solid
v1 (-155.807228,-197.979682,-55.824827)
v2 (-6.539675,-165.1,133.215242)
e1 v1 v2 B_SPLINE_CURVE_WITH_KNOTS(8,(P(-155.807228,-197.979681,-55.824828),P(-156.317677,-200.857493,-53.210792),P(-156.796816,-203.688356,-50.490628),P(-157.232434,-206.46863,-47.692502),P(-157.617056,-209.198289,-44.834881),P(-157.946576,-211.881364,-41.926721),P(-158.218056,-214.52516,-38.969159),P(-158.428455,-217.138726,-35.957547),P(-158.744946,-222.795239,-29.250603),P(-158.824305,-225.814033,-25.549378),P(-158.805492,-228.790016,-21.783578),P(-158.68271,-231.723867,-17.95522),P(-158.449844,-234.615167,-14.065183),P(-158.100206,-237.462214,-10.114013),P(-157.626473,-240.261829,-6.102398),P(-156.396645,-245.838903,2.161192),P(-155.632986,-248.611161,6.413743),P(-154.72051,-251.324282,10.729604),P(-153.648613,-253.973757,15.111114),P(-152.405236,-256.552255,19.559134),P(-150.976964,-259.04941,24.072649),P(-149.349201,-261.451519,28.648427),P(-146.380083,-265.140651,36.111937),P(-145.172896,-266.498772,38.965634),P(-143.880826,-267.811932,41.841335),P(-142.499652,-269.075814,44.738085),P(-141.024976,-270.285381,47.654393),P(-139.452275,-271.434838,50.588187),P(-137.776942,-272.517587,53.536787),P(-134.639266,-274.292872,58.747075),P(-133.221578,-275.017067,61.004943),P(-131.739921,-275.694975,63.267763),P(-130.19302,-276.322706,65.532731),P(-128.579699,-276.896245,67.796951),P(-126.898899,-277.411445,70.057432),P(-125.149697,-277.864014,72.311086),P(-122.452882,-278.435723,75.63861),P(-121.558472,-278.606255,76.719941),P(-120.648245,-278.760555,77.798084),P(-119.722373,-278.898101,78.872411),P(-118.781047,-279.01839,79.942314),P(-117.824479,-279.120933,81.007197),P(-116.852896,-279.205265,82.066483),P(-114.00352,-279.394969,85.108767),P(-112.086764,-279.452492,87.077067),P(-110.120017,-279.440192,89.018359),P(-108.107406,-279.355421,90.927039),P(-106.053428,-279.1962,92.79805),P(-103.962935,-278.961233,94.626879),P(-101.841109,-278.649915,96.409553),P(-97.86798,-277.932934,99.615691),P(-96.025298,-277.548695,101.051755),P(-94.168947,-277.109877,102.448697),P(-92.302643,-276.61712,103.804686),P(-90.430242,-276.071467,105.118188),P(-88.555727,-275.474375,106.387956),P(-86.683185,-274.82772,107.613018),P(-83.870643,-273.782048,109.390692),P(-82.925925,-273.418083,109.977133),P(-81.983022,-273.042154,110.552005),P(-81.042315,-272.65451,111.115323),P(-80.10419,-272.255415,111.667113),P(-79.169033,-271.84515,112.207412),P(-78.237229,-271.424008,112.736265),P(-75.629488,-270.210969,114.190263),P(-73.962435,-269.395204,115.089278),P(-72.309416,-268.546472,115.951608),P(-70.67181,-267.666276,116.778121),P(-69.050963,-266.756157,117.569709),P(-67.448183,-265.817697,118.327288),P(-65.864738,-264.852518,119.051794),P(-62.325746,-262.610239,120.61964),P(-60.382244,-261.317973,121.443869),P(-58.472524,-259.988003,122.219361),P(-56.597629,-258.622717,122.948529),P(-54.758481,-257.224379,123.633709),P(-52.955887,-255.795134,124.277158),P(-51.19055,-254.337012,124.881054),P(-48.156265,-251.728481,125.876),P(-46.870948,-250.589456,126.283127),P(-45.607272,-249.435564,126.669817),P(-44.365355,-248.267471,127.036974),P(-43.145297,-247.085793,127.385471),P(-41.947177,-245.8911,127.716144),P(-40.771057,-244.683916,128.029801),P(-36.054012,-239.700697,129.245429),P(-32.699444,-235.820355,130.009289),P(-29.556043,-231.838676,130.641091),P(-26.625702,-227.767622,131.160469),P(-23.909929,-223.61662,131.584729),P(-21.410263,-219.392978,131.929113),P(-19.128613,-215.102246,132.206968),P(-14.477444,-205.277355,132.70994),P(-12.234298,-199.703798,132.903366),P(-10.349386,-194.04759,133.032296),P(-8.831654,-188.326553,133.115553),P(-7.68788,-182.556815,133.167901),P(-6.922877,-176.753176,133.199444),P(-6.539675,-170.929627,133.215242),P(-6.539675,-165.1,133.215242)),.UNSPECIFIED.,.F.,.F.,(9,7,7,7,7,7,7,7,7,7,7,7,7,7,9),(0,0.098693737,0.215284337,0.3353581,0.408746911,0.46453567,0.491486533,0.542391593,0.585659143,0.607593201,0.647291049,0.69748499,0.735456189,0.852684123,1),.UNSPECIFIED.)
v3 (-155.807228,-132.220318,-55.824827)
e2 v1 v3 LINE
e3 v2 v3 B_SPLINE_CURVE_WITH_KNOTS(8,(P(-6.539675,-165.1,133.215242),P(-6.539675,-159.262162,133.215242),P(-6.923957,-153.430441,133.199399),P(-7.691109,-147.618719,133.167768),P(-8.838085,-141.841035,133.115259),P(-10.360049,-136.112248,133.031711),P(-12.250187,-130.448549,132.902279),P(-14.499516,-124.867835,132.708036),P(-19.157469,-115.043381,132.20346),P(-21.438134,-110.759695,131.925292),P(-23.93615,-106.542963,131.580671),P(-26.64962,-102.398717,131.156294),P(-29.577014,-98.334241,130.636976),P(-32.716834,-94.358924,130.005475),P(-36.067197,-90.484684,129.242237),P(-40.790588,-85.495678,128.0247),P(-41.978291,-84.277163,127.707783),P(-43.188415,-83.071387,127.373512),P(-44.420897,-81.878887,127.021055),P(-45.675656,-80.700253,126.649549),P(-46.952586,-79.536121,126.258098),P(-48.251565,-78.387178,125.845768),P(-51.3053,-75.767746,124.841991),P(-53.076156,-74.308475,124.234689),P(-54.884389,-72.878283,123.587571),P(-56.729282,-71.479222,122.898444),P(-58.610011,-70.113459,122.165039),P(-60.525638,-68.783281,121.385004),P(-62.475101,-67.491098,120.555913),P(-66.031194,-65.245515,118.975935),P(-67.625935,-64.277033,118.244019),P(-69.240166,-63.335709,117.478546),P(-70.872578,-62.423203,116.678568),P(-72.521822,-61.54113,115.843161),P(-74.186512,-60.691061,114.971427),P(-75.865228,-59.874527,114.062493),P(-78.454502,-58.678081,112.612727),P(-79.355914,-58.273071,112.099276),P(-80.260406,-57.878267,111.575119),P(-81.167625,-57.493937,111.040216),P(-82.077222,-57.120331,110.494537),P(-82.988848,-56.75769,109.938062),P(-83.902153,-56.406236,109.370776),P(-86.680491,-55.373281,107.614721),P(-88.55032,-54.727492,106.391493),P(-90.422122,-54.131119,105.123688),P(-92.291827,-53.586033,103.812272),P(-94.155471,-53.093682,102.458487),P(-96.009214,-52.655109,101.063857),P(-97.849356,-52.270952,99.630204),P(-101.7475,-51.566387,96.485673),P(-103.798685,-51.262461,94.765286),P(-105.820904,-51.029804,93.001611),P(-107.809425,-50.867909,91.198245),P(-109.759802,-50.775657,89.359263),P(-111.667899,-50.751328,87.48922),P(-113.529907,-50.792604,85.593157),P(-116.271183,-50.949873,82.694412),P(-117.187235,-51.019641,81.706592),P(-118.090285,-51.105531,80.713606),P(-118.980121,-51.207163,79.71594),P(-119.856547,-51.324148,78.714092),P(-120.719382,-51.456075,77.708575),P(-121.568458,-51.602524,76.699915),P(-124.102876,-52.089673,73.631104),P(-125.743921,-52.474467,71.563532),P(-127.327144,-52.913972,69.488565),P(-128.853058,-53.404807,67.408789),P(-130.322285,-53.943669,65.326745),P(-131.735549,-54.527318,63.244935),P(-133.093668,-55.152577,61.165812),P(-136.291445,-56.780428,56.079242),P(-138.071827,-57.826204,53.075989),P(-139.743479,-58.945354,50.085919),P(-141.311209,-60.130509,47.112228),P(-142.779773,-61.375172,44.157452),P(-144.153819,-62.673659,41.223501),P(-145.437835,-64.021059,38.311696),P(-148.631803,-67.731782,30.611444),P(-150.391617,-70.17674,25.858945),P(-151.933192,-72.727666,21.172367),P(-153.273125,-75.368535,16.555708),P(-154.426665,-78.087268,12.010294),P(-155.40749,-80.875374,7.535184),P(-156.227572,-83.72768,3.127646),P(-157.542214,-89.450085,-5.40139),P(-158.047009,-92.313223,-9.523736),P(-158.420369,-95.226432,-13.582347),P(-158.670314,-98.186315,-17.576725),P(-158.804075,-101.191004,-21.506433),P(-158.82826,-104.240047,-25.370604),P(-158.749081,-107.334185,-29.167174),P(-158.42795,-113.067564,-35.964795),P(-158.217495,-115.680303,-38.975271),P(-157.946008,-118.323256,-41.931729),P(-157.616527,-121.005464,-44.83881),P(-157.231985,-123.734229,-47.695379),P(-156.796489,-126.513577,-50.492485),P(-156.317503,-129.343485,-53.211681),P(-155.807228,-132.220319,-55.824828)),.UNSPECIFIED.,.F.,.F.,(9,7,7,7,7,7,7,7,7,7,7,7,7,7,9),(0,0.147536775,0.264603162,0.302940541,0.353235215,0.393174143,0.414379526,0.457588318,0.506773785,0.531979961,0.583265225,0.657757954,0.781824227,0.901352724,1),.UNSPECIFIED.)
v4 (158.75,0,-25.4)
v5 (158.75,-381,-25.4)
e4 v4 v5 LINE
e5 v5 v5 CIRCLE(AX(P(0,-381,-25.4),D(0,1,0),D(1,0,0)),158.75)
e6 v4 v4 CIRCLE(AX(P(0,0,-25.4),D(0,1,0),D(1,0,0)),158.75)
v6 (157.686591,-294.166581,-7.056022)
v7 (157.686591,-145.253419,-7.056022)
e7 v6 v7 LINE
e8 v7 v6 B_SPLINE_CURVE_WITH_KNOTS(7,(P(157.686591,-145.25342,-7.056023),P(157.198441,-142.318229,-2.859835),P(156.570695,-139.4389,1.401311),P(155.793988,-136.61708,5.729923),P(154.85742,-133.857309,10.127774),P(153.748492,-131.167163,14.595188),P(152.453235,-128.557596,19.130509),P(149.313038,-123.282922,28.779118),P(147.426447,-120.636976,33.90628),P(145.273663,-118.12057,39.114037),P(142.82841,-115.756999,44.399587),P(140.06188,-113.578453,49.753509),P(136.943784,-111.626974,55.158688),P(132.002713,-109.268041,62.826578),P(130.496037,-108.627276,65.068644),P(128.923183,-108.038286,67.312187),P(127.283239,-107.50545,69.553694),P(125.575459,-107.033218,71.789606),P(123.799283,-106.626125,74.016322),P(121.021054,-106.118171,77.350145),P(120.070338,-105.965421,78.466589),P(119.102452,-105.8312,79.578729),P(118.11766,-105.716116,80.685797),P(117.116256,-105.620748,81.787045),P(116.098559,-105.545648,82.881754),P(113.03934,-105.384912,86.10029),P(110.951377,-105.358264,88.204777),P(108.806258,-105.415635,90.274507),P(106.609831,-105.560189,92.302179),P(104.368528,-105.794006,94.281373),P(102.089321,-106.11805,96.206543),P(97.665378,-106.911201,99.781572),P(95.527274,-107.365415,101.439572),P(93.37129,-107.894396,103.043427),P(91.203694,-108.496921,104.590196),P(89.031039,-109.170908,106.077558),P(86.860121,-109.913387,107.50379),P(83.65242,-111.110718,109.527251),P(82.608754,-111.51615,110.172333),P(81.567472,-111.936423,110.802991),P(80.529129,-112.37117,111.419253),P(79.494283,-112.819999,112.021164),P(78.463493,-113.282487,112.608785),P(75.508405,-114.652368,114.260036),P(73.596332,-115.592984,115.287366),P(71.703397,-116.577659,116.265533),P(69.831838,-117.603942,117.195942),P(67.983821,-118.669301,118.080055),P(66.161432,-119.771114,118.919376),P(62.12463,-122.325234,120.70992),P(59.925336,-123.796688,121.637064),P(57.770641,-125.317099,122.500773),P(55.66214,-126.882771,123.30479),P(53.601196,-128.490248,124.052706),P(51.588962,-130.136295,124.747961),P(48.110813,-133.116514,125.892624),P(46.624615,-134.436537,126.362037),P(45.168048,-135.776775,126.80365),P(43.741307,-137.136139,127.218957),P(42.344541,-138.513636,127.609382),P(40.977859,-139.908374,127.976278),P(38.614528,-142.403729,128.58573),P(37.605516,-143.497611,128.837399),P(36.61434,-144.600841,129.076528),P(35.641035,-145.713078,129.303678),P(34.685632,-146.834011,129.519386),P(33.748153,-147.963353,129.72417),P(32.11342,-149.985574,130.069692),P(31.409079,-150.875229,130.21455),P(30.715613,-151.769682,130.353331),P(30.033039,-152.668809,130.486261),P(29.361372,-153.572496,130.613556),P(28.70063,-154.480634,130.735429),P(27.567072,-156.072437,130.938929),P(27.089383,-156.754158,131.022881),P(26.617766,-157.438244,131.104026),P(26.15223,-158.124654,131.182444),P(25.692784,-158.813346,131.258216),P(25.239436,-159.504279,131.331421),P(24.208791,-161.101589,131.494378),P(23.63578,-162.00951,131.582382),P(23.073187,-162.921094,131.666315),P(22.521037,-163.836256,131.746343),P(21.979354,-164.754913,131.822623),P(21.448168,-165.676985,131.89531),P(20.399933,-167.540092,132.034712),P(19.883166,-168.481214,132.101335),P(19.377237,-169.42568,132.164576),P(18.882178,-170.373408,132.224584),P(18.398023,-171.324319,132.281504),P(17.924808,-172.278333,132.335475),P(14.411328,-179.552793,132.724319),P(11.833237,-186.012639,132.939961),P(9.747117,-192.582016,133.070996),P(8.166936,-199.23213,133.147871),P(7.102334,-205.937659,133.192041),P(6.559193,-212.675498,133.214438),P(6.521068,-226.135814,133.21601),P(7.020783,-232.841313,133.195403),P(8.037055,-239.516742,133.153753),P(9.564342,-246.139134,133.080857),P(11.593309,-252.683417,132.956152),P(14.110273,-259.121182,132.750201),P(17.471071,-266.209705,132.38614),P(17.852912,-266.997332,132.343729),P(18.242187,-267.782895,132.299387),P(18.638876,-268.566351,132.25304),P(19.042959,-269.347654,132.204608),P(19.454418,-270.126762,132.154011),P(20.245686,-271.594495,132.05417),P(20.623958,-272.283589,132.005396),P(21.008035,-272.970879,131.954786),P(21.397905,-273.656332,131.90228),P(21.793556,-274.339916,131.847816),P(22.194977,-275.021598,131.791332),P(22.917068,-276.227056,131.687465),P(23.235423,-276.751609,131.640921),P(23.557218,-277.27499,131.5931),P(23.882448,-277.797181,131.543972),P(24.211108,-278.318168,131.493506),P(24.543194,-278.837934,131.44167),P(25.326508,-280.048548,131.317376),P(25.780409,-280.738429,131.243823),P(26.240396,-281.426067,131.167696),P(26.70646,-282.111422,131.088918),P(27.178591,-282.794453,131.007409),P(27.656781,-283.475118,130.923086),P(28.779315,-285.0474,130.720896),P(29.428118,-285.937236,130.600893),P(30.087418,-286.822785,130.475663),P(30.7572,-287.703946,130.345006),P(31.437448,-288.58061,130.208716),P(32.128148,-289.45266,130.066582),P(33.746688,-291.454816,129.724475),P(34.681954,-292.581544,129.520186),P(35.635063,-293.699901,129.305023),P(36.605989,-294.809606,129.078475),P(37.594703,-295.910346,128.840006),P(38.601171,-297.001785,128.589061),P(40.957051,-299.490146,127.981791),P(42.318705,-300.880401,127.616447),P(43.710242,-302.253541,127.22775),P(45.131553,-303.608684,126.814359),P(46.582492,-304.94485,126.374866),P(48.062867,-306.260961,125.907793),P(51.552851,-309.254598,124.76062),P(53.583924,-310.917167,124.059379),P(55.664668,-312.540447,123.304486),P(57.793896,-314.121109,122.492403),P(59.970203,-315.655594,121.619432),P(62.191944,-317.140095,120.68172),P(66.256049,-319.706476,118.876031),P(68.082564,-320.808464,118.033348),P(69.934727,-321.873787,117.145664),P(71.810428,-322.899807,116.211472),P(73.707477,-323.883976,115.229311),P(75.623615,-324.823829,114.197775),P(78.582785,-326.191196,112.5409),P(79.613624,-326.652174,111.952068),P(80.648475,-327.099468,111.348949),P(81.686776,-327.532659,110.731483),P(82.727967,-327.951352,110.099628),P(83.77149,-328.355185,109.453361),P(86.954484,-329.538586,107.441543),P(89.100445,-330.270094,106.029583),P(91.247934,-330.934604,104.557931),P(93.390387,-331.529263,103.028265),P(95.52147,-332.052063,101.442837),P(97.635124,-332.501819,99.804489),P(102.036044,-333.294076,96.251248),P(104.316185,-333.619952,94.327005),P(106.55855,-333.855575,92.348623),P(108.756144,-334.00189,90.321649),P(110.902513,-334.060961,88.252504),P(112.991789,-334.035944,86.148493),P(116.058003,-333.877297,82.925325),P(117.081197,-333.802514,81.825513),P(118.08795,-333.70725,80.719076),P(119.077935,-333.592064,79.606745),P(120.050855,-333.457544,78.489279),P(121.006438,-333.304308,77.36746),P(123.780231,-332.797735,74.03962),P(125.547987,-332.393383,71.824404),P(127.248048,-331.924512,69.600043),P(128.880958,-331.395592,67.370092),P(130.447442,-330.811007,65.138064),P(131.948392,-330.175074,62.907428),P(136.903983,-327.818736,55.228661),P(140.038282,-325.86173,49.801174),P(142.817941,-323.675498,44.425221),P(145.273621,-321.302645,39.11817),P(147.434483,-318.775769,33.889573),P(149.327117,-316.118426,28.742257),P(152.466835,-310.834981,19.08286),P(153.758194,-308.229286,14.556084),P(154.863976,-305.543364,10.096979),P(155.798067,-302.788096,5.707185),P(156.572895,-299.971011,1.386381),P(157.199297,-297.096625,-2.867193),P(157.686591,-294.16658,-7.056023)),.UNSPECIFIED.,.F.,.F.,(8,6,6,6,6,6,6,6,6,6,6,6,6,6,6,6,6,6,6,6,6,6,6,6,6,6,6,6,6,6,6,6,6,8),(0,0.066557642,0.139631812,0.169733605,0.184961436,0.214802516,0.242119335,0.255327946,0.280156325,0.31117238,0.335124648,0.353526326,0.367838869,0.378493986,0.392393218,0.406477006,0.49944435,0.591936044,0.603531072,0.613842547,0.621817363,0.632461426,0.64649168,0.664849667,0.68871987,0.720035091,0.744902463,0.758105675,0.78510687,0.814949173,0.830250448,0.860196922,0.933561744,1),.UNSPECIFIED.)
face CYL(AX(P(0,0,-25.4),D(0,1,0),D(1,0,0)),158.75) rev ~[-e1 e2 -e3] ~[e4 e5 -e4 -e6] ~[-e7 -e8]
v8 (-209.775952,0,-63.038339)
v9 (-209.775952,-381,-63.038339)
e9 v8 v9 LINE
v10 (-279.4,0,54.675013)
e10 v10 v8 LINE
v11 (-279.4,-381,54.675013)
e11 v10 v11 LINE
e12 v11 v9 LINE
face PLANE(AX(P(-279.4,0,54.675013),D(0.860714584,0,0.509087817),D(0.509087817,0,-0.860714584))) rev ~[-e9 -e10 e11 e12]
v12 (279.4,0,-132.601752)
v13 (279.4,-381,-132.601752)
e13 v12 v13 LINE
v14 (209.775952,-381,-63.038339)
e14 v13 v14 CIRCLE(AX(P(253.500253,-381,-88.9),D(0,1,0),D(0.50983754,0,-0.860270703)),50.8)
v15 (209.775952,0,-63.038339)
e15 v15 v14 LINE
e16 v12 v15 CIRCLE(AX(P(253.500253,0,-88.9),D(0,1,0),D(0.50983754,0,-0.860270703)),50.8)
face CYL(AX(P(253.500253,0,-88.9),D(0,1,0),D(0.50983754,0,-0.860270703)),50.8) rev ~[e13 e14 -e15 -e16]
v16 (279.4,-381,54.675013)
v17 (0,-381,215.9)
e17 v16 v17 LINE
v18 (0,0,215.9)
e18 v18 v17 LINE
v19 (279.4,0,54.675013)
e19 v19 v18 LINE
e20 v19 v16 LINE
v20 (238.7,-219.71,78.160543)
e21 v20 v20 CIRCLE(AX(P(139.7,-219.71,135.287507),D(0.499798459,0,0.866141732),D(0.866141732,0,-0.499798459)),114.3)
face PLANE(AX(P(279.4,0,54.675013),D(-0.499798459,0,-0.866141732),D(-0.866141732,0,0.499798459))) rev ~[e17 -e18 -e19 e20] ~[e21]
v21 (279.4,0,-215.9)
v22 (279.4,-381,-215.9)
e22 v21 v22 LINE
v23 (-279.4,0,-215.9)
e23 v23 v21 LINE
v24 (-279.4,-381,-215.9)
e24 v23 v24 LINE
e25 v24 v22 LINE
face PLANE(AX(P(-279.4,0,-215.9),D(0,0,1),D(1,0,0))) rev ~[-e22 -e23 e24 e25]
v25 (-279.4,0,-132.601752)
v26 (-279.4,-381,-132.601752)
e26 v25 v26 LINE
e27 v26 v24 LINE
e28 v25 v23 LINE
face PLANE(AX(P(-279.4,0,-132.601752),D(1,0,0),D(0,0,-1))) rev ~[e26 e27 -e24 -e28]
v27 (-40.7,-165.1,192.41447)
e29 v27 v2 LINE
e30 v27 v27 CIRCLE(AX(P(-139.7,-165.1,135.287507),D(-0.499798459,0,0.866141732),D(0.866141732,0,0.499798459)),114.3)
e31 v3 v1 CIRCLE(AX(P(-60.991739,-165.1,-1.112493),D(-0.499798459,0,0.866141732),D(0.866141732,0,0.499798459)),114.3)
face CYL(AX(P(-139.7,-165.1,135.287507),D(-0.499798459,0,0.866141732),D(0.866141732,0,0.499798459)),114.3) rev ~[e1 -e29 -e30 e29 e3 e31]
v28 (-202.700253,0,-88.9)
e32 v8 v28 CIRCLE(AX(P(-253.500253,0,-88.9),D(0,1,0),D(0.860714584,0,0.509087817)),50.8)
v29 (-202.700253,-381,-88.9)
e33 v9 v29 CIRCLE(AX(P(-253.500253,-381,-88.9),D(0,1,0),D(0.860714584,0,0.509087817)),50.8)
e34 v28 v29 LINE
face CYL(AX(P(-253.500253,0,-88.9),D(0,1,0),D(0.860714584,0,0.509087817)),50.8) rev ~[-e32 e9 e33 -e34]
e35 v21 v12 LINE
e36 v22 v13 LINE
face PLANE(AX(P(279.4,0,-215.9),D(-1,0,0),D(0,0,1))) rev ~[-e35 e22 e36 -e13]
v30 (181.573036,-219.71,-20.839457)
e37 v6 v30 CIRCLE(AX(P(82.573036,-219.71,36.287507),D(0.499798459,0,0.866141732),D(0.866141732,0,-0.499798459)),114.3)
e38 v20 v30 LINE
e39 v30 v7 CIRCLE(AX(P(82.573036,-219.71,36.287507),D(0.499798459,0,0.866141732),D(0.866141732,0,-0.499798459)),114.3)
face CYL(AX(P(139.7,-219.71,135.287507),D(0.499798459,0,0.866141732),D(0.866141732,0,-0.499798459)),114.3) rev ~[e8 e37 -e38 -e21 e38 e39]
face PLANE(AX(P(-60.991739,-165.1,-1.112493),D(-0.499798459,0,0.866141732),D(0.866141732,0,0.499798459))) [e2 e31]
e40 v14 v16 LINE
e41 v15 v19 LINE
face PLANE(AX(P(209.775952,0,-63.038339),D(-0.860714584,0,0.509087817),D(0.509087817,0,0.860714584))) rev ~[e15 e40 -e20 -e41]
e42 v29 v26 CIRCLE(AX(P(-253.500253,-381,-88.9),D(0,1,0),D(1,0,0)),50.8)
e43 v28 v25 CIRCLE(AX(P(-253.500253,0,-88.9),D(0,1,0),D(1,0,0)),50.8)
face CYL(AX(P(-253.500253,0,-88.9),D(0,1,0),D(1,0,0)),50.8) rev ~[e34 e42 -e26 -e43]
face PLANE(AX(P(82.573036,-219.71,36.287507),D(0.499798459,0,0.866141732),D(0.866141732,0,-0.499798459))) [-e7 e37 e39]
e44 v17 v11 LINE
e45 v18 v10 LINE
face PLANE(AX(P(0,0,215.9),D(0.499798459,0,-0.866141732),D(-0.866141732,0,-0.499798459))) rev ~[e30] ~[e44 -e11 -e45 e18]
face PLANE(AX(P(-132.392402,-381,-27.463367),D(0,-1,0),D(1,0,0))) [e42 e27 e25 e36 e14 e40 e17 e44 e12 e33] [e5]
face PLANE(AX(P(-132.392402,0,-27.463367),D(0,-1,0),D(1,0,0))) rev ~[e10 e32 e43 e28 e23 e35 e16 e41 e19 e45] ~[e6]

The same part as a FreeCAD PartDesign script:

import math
import FreeCAD as App
import Part
import Sketcher
Q = App.Units.Quantity

doc = App.newDocument("Part")
body = doc.addObject("PartDesign::Body", "Body")

sketch1 = doc.addObject("Sketcher::SketchObject", "Sketch")
body.addObject(sketch1)
sketch1.AttachmentSupport = (doc.XZ_Plane, [""])
sketch1.MapMode = "FlatFace"
sketch1.addGeometry([
    Part.LineSegment(App.Vector(0, 216, 0), App.Vector(-279, 55, 0)),
    Part.LineSegment(App.Vector(-279, 55, 0), App.Vector(-210, -63, 0)),
    Part.ArcOfCircle(Part.Circle(App.Vector(-254, -89, 0), App.Vector(0, 0, 1), 51), math.radians(0), math.radians(31)),
    Part.ArcOfCircle(Part.Circle(App.Vector(-254, -89, 0), App.Vector(0, 0, 1), 51), math.radians(-121), math.radians(0)),
    Part.LineSegment(App.Vector(-279, -133, 0), App.Vector(-279, -216, 0)),
    Part.LineSegment(App.Vector(-279, -216, 0), App.Vector(279, -216, 0)),
    Part.LineSegment(App.Vector(279, -216, 0), App.Vector(279, -133, 0)),
    Part.ArcOfCircle(Part.Circle(App.Vector(254, -89, 0), App.Vector(0, 0, 1), 51), math.radians(149), math.radians(301)),
    Part.LineSegment(App.Vector(210, -63, 0), App.Vector(279, 55, 0)),
    Part.LineSegment(App.Vector(279, 55, 0), App.Vector(0, 216, 0)),
    Part.Circle(App.Vector(0, -25, 0), App.Vector(0, 0, 1), 159),
], False)
sketch1.addConstraint([
    Sketcher.Constraint("Coincident", 0, 2, 1, 1),
    Sketcher.Constraint("Tangent", 1, 2, 2, 2),
    Sketcher.Constraint("Tangent", 2, 1, 3, 2),
    Sketcher.Constraint("Coincident", 3, 1, 4, 1),
    Sketcher.Constraint("Coincident", 4, 2, 5, 1),
    Sketcher.Constraint("Coincident", 5, 2, 6, 1),
    Sketcher.Constraint("Coincident", 6, 2, 7, 2),
    Sketcher.Constraint("Tangent", 7, 1, 8, 1),
    Sketcher.Constraint("Coincident", 8, 2, 9, 1),
    Sketcher.Constraint("Coincident", 9, 2, 0, 1),
    Sketcher.Constraint("Vertical", 4),
    Sketcher.Constraint("Horizontal", 5),
    Sketcher.Constraint("Vertical", 6),
    Sketcher.Constraint("Equal", 2, 3),
    Sketcher.Constraint("Equal", 3, 7),
    Sketcher.Constraint("Symmetric", 2, 3, 7, 3, -2),
    Sketcher.Constraint("Symmetric", 0, 2, 8, 2, -2),
    Sketcher.Constraint("PointOnObject", 10, 3, -2),
    Sketcher.Constraint("PointOnObject", 9, 2, -2),
    Sketcher.Constraint("Horizontal", 7, 3, 2, 1),
    Sketcher.Constraint("Horizontal", 3, 1, 6, 2),
    Sketcher.Constraint("Vertical", 0, 2, 3, 1),
    Sketcher.Constraint("Radius", 2, Q("2 in")),
    Sketcher.Constraint("Diameter", 10, Q("12.5 in")),
    Sketcher.Constraint("DistanceX", 5, 1, 5, 2, Q("22 in")),
    Sketcher.Constraint("DistanceY", 10, 3, -1, 1, Q("1 in")),
    Sketcher.Constraint("DistanceY", 4, 2, 2, 3, Q("5 in")),
    Sketcher.Constraint("Distance", 0, Q("12.7 in")),
    Sketcher.Constraint("DistanceY", 2, 3, -1, 1, Q("3.5 in")),
    Sketcher.Constraint("DistanceY", -1, 1, 9, 2, Q("8.5 in")),
    Sketcher.Constraint("DistanceY", 4, 2, 4, 1, 83.298248),
])
pad1 = doc.addObject("PartDesign::Pad", "Pad")
body.addObject(pad1)
pad1.Profile = sketch1
pad1.Length = Q("15 in")

sketch2 = doc.addObject("Sketcher::SketchObject", "Sketch001")
body.addObject(sketch2)
sketch2.Placement = App.Placement(App.Vector(93.462312, 0, 161.968504), App.Rotation(App.Vector(0.866141732, 0, -0.499798459), App.Vector(0, 1, 0), App.Vector(0.499798459, 0, 0.866141732), "ZXY"))
sketch2.addGeometry(Part.Circle(App.Vector(53, -220, 0), App.Vector(0, 0, 1), 114), False)
sketch2.addConstraint([
    Sketcher.Constraint("Diameter", 0, Q("9 in")),
    Sketcher.Constraint("DistanceY", 0, 3, -1, 1, Q("8.65 in")),
    Sketcher.Constraint("DistanceX", -1, 1, 0, 3, 53.383513),
])
pocket1 = doc.addObject("PartDesign::Pocket", "Pocket")
body.addObject(pocket1)
pocket1.Profile = sketch2
pocket1.Length = Q("4.5 in")

sketch3 = doc.addObject("Sketcher::SketchObject", "Sketch002")
body.addObject(sketch3)
sketch3.Placement = App.Placement(App.Vector(-93.462312, 0, 161.968504), App.Rotation(App.Vector(0.866141732, 0, 0.499798459), App.Vector(0, 1, 0), App.Vector(-0.499798459, 0, 0.866141732), "ZXY"))
sketch3.addGeometry(Part.Circle(App.Vector(-53, -165, 0), App.Vector(0, 0, 1), 114), False)
sketch3.addConstraint([
    Sketcher.Constraint("Diameter", 0, Q("9 in")),
    Sketcher.Constraint("DistanceY", 0, 3, -1, 1, Q("6.5 in")),
    Sketcher.Constraint("DistanceX", 0, 3, -1, 1, 53.383513),
])
pocket2 = doc.addObject("PartDesign::Pocket", "Pocket001")
body.addObject(pocket2)
pocket2.Profile = sketch3
pocket2.Length = Q("6.2 in")

doc.recompute()
